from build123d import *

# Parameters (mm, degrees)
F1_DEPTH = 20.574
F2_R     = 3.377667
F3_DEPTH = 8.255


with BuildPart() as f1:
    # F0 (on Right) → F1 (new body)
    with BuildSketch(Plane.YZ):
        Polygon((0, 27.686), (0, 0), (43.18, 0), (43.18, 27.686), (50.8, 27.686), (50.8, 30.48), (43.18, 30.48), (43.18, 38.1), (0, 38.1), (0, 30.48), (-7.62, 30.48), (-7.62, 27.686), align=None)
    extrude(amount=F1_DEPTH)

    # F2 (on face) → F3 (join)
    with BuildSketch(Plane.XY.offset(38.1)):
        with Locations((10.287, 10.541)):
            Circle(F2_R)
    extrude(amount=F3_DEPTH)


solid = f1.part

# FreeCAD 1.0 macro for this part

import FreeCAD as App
import Part
import Sketcher

V = App.Vector
Q = App.Units.Quantity


def add_polygon(sketch, points):
    """Adds a closed chain of lines whose ends are joined by coincident constraints."""
    first, n = sketch.GeometryCount, len(points)
    for a, b in zip(points, points[1:] + points[:1]):
        sketch.addGeometry(Part.LineSegment(App.Vector(*a, 0), App.Vector(*b, 0)), False)
    for i in range(n):
        sketch.addConstraint(Sketcher.Constraint("Coincident", first + i, 2, first + (i + 1) % n, 1))

doc = App.newDocument("Part")
body = doc.addObject("PartDesign::Body", "Body")

sketch1 = doc.addObject("Sketcher::SketchObject", "Sketch")
body.addObject(sketch1)
sketch1.AttachmentSupport = (doc.YZ_Plane, [""])
sketch1.MapMode = "FlatFace"
add_polygon(sketch1, [(0, 27.7), (0, 0), (43.2, 0), (43.2, 27.7), (50.8, 27.7), (50.8, 30.5), (43.2, 30.5), (43.2, 38.1), (0, 38.1), (0, 30.5), (-7.6, 30.5), (-7.6, 27.7)])
sketch1.addConstraint(Sketcher.Constraint("Vertical", 0))
sketch1.addConstraint(Sketcher.Constraint("Horizontal", 1))
sketch1.addConstraint(Sketcher.Constraint("Vertical", 2))
sketch1.addConstraint(Sketcher.Constraint("Horizontal", 3))
sketch1.addConstraint(Sketcher.Constraint("Vertical", 4))
sketch1.addConstraint(Sketcher.Constraint("Horizontal", 5))
sketch1.addConstraint(Sketcher.Constraint("Vertical", 6))
sketch1.addConstraint(Sketcher.Constraint("Horizontal", 7))
sketch1.addConstraint(Sketcher.Constraint("Vertical", 8))
sketch1.addConstraint(Sketcher.Constraint("Horizontal", 9))
sketch1.addConstraint(Sketcher.Constraint("Vertical", 10))
sketch1.addConstraint(Sketcher.Constraint("Horizontal", 11))
sketch1.addConstraint(Sketcher.Constraint("Coincident", 0, 2, -1, 1))
sketch1.addConstraint(Sketcher.Constraint("PointOnObject", 7, 2, -2))
sketch1.addConstraint(Sketcher.Constraint("Horizontal", 5, 2, 8, 2))
sketch1.addConstraint(Sketcher.Constraint("Horizontal", 3, 2, 10, 2))
sketch1.addConstraint(Sketcher.Constraint("Vertical", 2, 2, 5, 2))
sketch1.addConstraint(Sketcher.Constraint("Equal", 5, 9))
sketch1.addConstraint(Sketcher.Constraint("Equal", 11, 6))
sketch1.addConstraint(Sketcher.Constraint("DistanceX", 1, 1, 1, 2, Q("1.7 in")))
sketch1.addConstraint(Sketcher.Constraint("DistanceX", 3, 1, 3, 2, Q("0.3 in")))
sketch1.addConstraint(Sketcher.Constraint("DistanceY", 0, 2, 0, 1, Q("1.09 in")))
sketch1.addConstraint(Sketcher.Constraint("DistanceY", 4, 1, 4, 2, Q("0.11 in")))
pad1 = doc.addObject("PartDesign::Pad", "Pad")
body.addObject(pad1)
pad1.Profile = sketch1
pad1.Length = Q("0.81 in")

sketch2 = doc.addObject("Sketcher::SketchObject", "Sketch001")
body.addObject(sketch2)
sketch2.AttachmentSupport = (doc.XY_Plane, [""])
sketch2.MapMode = "FlatFace"
sketch2.AttachmentOffset = App.Placement(V(0, 0, 1.5 * 25.4), App.Rotation())
sketch2.addGeometry(Part.Circle(V(10.3, 10.5, 0), V(0, 0, 1), 3.4), False)
sketch2.addConstraint(Sketcher.Constraint("DistanceX", -1, 1, 0, 3, Q("0.405 in")))
sketch2.addConstraint(Sketcher.Constraint("DistanceY", -1, 1, 0, 3, Q("0.415 in")))
sketch2.addConstraint(Sketcher.Constraint("Diameter", 0, 6.755334))
pad2 = doc.addObject("PartDesign::Pad", "Pad001")
body.addObject(pad2)
pad2.Profile = sketch2
pad2.Length = Q("0.325 in")

doc.recompute()
